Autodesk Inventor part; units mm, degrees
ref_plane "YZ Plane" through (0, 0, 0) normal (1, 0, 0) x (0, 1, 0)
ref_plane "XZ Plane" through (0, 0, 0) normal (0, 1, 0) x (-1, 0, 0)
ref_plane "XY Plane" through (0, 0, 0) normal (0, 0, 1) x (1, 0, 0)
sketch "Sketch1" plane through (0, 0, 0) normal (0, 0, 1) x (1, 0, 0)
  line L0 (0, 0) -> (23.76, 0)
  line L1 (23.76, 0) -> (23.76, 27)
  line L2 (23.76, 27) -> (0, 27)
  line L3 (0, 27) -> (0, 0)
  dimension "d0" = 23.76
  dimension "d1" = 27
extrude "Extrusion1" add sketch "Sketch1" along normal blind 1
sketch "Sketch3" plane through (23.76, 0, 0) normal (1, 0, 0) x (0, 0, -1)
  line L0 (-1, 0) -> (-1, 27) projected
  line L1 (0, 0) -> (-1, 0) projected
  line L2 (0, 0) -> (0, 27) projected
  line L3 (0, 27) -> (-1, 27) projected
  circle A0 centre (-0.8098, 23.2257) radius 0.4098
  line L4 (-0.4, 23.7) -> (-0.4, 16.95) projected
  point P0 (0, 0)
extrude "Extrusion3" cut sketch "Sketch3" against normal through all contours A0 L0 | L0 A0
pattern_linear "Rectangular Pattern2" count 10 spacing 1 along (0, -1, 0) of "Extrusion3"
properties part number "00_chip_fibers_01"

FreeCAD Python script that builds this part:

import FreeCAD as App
import Part
import Sketcher
from FreeCAD import Vector
Q = App.Units.Quantity


def add_polygon(sketch, points):
    """Adds a closed chain of lines whose ends are joined by coincident constraints."""
    first, n = sketch.GeometryCount, len(points)
    for a, b in zip(points, points[1:] + points[:1]):
        sketch.addGeometry(Part.LineSegment(App.Vector(*a, 0), App.Vector(*b, 0)), False)
    for i in range(n):
        sketch.addConstraint(Sketcher.Constraint("Coincident", first + i, 2, first + (i + 1) % n, 1))

doc = App.newDocument("Part")
body = doc.addObject("PartDesign::Body", "Body")

# Sketch on XY plane
sketch1 = doc.addObject("Sketcher::SketchObject", "Sketch")
body.addObject(sketch1)
sketch1.AttachmentSupport = (doc.XY_Plane, [""])
sketch1.MapMode = "FlatFace"
add_polygon(sketch1, [(0, 27), (0, 0), (24, 0), (24, 27)])  # lines 0-3
sketch1.addConstraint([
    Sketcher.Constraint("Vertical", 0),
    Sketcher.Constraint("Horizontal", 1),
    Sketcher.Constraint("Vertical", 2),
    Sketcher.Constraint("Horizontal", 3),
    Sketcher.Constraint("Coincident", 0, 2, -1, 1),
    Sketcher.Constraint("DistanceY", 0, 2, 0, 1, Q("27 mm")),
    Sketcher.Constraint("DistanceX", 1, 1, 1, 2, Q("23.76 mm")),
])
pad1 = doc.addObject("PartDesign::Pad", "Pad")
body.addObject(pad1)
pad1.Profile = sketch1
pad1.Length = 1

# Sketch on YZ plane
sketch2 = doc.addObject("Sketcher::SketchObject", "Sketch001")
body.addObject(sketch2)
sketch2.AttachmentSupport = (doc.YZ_Plane, [""])
sketch2.MapMode = "FlatFace"
sketch2.AttachmentOffset = App.Placement(Vector(0, 0, 23.76), App.Rotation())
sketch2.addGeometry(Part.Circle(Vector(23.23, 0.81, 0), Vector(0, 0, 1), 0.41), False)
sketch2.addConstraint([
    Sketcher.Constraint("Diameter", 0, Q("0.8196 mm")),
    Sketcher.Constraint("DistanceX", -1, 1, 0, 3, Q("23.2257 mm")),
    Sketcher.Constraint("DistanceY", -1, 1, 0, 3, Q("0.8098 mm")),
])
pocket1 = doc.addObject("PartDesign::Pocket", "Pocket")
body.addObject(pocket1)
pocket1.Profile = sketch2
pocket1.Type = "ThroughAll"
doc.recompute()

linearpattern = doc.addObject("PartDesign::LinearPattern", "LinearPattern")
body.addObject(linearpattern)
linearpattern.Originals = [pocket1]
linearpattern.Direction = (doc.Y_Axis, [""])
linearpattern.Mode = "offset"
linearpattern.Offset = 1
linearpattern.Occurrences = 10
linearpattern.Reversed = True
body.Tip = linearpattern

doc.recompute()
